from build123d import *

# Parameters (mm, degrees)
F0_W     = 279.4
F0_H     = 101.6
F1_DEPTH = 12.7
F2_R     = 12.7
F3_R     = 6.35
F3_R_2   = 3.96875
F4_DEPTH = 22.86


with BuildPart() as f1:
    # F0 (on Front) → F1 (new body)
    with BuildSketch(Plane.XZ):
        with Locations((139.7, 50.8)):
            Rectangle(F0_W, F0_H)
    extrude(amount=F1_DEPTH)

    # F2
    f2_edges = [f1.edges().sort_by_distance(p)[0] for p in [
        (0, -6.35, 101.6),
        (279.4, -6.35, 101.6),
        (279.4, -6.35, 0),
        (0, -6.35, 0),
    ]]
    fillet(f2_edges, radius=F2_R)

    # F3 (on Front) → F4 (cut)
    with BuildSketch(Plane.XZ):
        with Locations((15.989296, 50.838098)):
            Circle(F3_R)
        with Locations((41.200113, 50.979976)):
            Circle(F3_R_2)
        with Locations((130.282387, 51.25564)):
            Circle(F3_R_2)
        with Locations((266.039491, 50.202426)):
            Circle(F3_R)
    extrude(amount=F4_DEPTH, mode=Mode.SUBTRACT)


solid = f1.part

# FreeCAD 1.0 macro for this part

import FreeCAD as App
import Part
import Sketcher
from FreeCAD import Vector
Q = App.Units.Quantity


def edges_at(feature, points):
    """Names of the edges that pass closest to the given points."""
    edges = feature.Shape.Edges
    near = lambda p: min(range(len(edges)), key=lambda i: edges[i].distToShape(Part.Vertex(*p))[0])
    return sorted({f"Edge{near(p) + 1}" for p in points})


def add_polygon(sketch, points):
    """Adds a closed chain of lines whose ends are joined by coincident constraints."""
    first, n = sketch.GeometryCount, len(points)
    for a, b in zip(points, points[1:] + points[:1]):
        sketch.addGeometry(Part.LineSegment(App.Vector(*a, 0), App.Vector(*b, 0)), False)
    for i in range(n):
        sketch.addConstraint(Sketcher.Constraint("Coincident", first + i, 2, first + (i + 1) % n, 1))

doc = App.newDocument("Part")
body = doc.addObject("PartDesign::Body", "Body")

# Sketch on XZ plane
sketch1 = body.newObject("Sketcher::SketchObject", "Sketch")
sketch1.AttachmentSupport = (doc.getObject("XZ_Plane"), [""])
sketch1.MapMode = "FlatFace"
add_polygon(sketch1, [(0, 101.6), (0, 0), (279.4, 0), (279.4, 101.6)])  # lines 0-3
sketch1.addConstraint(Sketcher.Constraint("Vertical", 0))
sketch1.addConstraint(Sketcher.Constraint("Horizontal", 1))
sketch1.addConstraint(Sketcher.Constraint("Vertical", 2))
sketch1.addConstraint(Sketcher.Constraint("Horizontal", 3))
sketch1.addConstraint(Sketcher.Constraint("Coincident", 0, 2, -1, 1))
sketch1.addConstraint(Sketcher.Constraint("DistanceX", 1, 1, 1, 2, Q("11 in")))
sketch1.addConstraint(Sketcher.Constraint("DistanceY", 0, 2, 0, 1, Q("4 in")))
pad1 = body.newObject("PartDesign::Pad", "Pad")
pad1.Profile = sketch1
pad1.Length = Q("0.5 in")
doc.recompute()

fillet = body.newObject("PartDesign::Fillet", "Fillet")
fillet.Base = (pad1, edges_at(pad1, [
    (0, -6.35, 101.6),
    (279.4, -6.35, 101.6),
    (279.4, -6.35, 0),
    (0, -6.35, 0),
]))
fillet.Radius = Q("0.5 in")

# Sketch on XZ plane
sketch2 = body.newObject("Sketcher::SketchObject", "Sketch001")
sketch2.AttachmentSupport = (doc.getObject("XZ_Plane"), [""])
sketch2.MapMode = "FlatFace"
sketch2.addGeometry(Part.Circle(Vector(15.989296, 50.838098, 0), Vector(0, 0, 1), 6.35), False)
sketch2.addGeometry(Part.Circle(Vector(41.200113, 50.979976, 0), Vector(0, 0, 1), 3.96875), False)
sketch2.addGeometry(Part.Circle(Vector(130.282387, 51.25564, 0), Vector(0, 0, 1), 3.96875), False)
sketch2.addGeometry(Part.Circle(Vector(266.039491, 50.202426, 0), Vector(0, 0, 1), 6.35), False)
sketch2.addConstraint(Sketcher.Constraint("Equal", 1, 2))
sketch2.addConstraint(Sketcher.Constraint("Equal", 0, 3))
sketch2.addConstraint(Sketcher.Constraint("Diameter", 0, Q("0.5 in")))
sketch2.addConstraint(Sketcher.Constraint("Diameter", 1, Q("0.3125 in")))
sketch2.addConstraint(Sketcher.Constraint("DistanceX", -1, 1, 0, 3, Q("0.6294998 in")))
sketch2.addConstraint(Sketcher.Constraint("DistanceY", -1, 1, 0, 3, Q("2.0014999 in")))
sketch2.addConstraint(Sketcher.Constraint("DistanceY", -1, 1, 2, 3, Q("51.25564 mm")))
sketch2.addConstraint(Sketcher.Constraint("DistanceX", -1, 1, 3, 3, Q("266.039491 mm")))
sketch2.addConstraint(Sketcher.Constraint("DistanceX", 0, 3, 2, 3, Q("114.293091 mm")))
sketch2.addConstraint(Sketcher.Constraint("DistanceX", 1, 3, 3, 3, Q("224.839378 mm")))
sketch2.addConstraint(Sketcher.Constraint("DistanceY", 3, 3, 1, 3, Q("0.77755 mm")))
sketch2.addConstraint(Sketcher.Constraint("DistanceY", 3, 3, 0, 3, Q("0.635672 mm")))
pocket1 = body.newObject("PartDesign::Pocket", "Pocket")
pocket1.Profile = sketch2
pocket1.Length = Q("0.9 in")
pocket1.Reversed = True

doc.recompute()
